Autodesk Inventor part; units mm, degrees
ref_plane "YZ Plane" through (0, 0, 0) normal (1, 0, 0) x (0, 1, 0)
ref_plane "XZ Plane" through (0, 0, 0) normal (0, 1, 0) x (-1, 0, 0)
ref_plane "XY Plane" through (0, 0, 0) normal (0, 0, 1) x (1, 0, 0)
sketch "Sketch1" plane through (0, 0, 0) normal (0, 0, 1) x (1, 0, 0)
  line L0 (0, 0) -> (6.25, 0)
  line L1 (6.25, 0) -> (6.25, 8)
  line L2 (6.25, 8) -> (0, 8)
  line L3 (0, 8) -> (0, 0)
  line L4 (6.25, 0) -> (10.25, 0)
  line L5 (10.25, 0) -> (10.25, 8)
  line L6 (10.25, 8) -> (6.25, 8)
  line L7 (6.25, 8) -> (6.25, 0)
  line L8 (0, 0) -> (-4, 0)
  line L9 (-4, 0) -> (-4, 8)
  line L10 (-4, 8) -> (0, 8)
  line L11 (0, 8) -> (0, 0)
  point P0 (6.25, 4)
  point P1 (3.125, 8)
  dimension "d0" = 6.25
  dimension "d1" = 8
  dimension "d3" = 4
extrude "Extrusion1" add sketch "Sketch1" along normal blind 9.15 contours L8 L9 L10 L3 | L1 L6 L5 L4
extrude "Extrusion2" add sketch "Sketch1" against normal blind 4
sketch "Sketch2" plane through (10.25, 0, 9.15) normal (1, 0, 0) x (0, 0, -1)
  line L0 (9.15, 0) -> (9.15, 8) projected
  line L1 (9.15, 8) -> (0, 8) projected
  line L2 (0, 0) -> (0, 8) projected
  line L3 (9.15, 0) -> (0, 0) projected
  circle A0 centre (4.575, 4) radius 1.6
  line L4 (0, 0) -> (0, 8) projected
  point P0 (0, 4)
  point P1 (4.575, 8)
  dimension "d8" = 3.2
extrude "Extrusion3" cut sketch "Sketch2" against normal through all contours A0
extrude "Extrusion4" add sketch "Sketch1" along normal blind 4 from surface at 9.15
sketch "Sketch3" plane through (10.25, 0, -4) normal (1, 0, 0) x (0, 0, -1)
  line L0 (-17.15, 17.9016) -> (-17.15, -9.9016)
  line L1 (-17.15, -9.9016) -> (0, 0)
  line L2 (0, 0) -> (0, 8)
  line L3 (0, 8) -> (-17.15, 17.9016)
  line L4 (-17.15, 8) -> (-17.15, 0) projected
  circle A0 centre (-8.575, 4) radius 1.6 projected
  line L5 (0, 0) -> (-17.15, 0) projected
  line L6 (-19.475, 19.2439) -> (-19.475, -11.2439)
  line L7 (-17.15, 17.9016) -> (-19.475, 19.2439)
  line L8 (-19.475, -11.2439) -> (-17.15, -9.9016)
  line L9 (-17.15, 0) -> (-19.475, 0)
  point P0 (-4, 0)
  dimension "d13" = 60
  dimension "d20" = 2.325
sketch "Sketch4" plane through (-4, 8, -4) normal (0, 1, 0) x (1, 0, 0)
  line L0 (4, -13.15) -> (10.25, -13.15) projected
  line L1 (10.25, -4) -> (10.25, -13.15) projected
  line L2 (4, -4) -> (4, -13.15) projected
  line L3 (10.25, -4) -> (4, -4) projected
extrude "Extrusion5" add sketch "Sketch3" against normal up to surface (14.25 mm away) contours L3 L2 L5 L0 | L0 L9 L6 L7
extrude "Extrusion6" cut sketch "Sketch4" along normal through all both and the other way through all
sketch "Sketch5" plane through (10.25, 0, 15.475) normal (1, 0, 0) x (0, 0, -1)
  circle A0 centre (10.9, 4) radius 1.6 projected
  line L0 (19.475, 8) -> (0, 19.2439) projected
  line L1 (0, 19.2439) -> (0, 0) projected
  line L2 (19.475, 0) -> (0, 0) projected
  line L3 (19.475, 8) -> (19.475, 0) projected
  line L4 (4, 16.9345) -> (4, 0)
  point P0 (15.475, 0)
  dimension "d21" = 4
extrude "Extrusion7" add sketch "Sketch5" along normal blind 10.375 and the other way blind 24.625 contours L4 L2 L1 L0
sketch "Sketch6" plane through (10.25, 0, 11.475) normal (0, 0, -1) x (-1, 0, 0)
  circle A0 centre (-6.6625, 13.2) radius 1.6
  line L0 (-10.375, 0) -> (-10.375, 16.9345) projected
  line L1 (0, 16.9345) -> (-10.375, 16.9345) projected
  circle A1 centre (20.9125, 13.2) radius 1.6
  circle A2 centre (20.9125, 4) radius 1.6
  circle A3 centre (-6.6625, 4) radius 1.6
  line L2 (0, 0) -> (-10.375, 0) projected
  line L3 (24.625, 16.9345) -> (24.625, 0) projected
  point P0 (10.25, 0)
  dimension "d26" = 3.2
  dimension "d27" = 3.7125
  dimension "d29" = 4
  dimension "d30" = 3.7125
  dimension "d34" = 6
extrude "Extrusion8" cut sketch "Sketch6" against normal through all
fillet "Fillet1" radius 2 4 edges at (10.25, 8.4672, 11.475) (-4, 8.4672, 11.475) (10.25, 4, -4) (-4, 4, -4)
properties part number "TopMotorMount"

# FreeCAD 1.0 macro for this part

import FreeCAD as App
import Part
import Sketcher
from FreeCAD import Vector
Q = App.Units.Quantity


def edges_at(feature, points):
    """Names of the edges that pass closest to the given points."""
    edges = feature.Shape.Edges
    near = lambda p: min(range(len(edges)), key=lambda i: edges[i].distToShape(Part.Vertex(*p))[0])
    return sorted({f"Edge{near(p) + 1}" for p in points})


def add_polygon(sketch, points):
    """Adds a closed chain of lines whose ends are joined by coincident constraints."""
    first, n = sketch.GeometryCount, len(points)
    for a, b in zip(points, points[1:] + points[:1]):
        sketch.addGeometry(Part.LineSegment(App.Vector(*a, 0), App.Vector(*b, 0)), False)
    for i in range(n):
        sketch.addConstraint(Sketcher.Constraint("Coincident", first + i, 2, first + (i + 1) % n, 1))

doc = App.newDocument("Part")
body = doc.addObject("PartDesign::Body", "Body")
body.AllowCompound = True

# Sketch on XY plane
sketch1 = body.newObject("Sketcher::SketchObject", "Sketch")
sketch1.AttachmentSupport = (doc.getObject("XY_Plane"), [""])
sketch1.MapMode = "FlatFace"
add_polygon(sketch1, [(-4, 0), (0, 0), (0, 8), (-4, 8)])  # lines 0-3
add_polygon(sketch1, [(6.25, 8), (6.25, 0), (10.25, 0), (10.25, 8)])  # lines 4-7
sketch1.addConstraint([
    Sketcher.Constraint("Horizontal", 0),
    Sketcher.Constraint("Vertical", 1),
    Sketcher.Constraint("Horizontal", 2),
    Sketcher.Constraint("Vertical", 3),
    Sketcher.Constraint("Vertical", 4),
    Sketcher.Constraint("Horizontal", 5),
    Sketcher.Constraint("Vertical", 6),
    Sketcher.Constraint("Horizontal", 7),
    Sketcher.Constraint("Coincident", 0, 2, -1, 1),
    Sketcher.Constraint("PointOnObject", 4, 2, -1),
    Sketcher.Constraint("Horizontal", 2, 2, 6, 2),
    Sketcher.Constraint("Equal", 2, 5),
    Sketcher.Constraint("DistanceX", 0, 1, 0, 2, 4.0),
    Sketcher.Constraint("DistanceY", 1, 1, 1, 2, 8.0),
    Sketcher.Constraint("DistanceX", -1, 1, 4, 2, 6.25),
])
pad1 = body.newObject("PartDesign::Pad", "Pad")
pad1.Profile = sketch1
pad1.Length = 9.15

# Sketch on XY plane
sketch2 = body.newObject("Sketcher::SketchObject", "Sketch001")
sketch2.AttachmentSupport = (doc.getObject("XY_Plane"), [""])
sketch2.MapMode = "FlatFace"
add_polygon(sketch2, [(-4, 8), (-4, 0), (10.25, 0), (10.25, 8)])  # lines 0-3
sketch2.addConstraint([
    Sketcher.Constraint("Vertical", 0),
    Sketcher.Constraint("Horizontal", 1),
    Sketcher.Constraint("Vertical", 2),
    Sketcher.Constraint("Horizontal", 3),
    Sketcher.Constraint("PointOnObject", 0, 2, -1),
    Sketcher.Constraint("DistanceY", 0, 2, 0, 1, 8.0),
    Sketcher.Constraint("DistanceX", 0, 2, -1, 1, 4.0),
    Sketcher.Constraint("DistanceX", 1, 1, 1, 2, 14.25),
])
pad2 = body.newObject("PartDesign::Pad", "Pad001")
pad2.Profile = sketch2
pad2.Length = 4
pad2.Reversed = True

# Sketch on YZ plane
sketch3 = body.newObject("Sketcher::SketchObject", "Sketch002")
sketch3.AttachmentSupport = (doc.getObject("YZ_Plane"), [""])
sketch3.MapMode = "FlatFace"
sketch3.AttachmentOffset = App.Placement(Vector(0, 0, 10.25), App.Rotation())
sketch3.addGeometry(Part.Circle(Vector(4, 4.575, 0), Vector(0, 0, 1), 1.6), False)
sketch3.addConstraint([
    Sketcher.Constraint("Diameter", 0, 3.2),
    Sketcher.Constraint("DistanceX", -1, 1, 0, 3, 4.0),
    Sketcher.Constraint("DistanceY", -1, 1, 0, 3, 4.575),
])
pocket1 = body.newObject("PartDesign::Pocket", "Pocket")
pocket1.Profile = sketch3
pocket1.Type = "ThroughAll"

# Sketch on XY plane
sketch4 = body.newObject("Sketcher::SketchObject", "Sketch003")
sketch4.AttachmentSupport = (doc.getObject("XY_Plane"), [""])
sketch4.MapMode = "FlatFace"
sketch4.AttachmentOffset = App.Placement(Vector(0, 0, 9.15), App.Rotation())
add_polygon(sketch4, [(-4, 8), (-4, 0), (10.25, 0), (10.25, 8)])  # lines 0-3
sketch4.addConstraint([
    Sketcher.Constraint("Vertical", 0),
    Sketcher.Constraint("Horizontal", 1),
    Sketcher.Constraint("Vertical", 2),
    Sketcher.Constraint("Horizontal", 3),
    Sketcher.Constraint("PointOnObject", 0, 2, -1),
    Sketcher.Constraint("DistanceY", 0, 2, 0, 1, 8.0),
    Sketcher.Constraint("DistanceX", 0, 2, -1, 1, 4.0),
    Sketcher.Constraint("DistanceX", 1, 1, 1, 2, 14.25),
])
pad3 = body.newObject("PartDesign::Pad", "Pad002")
pad3.Profile = sketch4
pad3.Length = 4

# Sketch on YZ plane
sketch5 = body.newObject("Sketcher::SketchObject", "Sketch004")
sketch5.AttachmentSupport = (doc.getObject("YZ_Plane"), [""])
sketch5.MapMode = "FlatFace"
sketch5.AttachmentOffset = App.Placement(Vector(0, 0, 10.25), App.Rotation())
add_polygon(sketch5, [(8, -4), (17.9016, 13.15), (19.2439, 15.475), (0, 15.475), (0, -4)])  # lines 0-4
sketch5.addGeometry(Part.Circle(Vector(4, 4.575, 0), Vector(0, 0, 1), 1.6), False)  # 5
sketch5.addConstraint([
    Sketcher.Constraint("Horizontal", 2),
    Sketcher.Constraint("Vertical", 3),
    Sketcher.Constraint("Horizontal", 4),
    Sketcher.Constraint("PointOnObject", 2, 2, -2),
    Sketcher.Constraint("Parallel", 0, 1),
    Sketcher.Constraint("Angle", 0, Q("60 deg")),
    Sketcher.Constraint("Diameter", 5, 3.2),
    Sketcher.Constraint("DistanceX", 4, 1, 4, 2, 8.0),
    Sketcher.Constraint("DistanceX", -1, 1, 5, 3, 4.0),
    Sketcher.Constraint("DistanceY", 3, 2, -1, 1, 4.0),
    Sketcher.Constraint("DistanceY", 0, 2, 1, 2, 2.325),
    Sketcher.Constraint("DistanceY", 5, 3, 1, 2, 10.9),
    Sketcher.Constraint("DistanceX", 2, 2, 2, 1, 19.244),
])
pad4 = body.newObject("PartDesign::Pad", "Pad003")
pad4.Profile = sketch5
pad4.Length = 14.25
pad4.Reversed = True

# Sketch on XZ plane
sketch6 = body.newObject("Sketcher::SketchObject", "Sketch005")
sketch6.AttachmentSupport = (doc.getObject("XZ_Plane"), [""])
sketch6.MapMode = "FlatFace"
sketch6.AttachmentOffset = App.Placement(Vector(0, 0, -8), App.Rotation())
add_polygon(sketch6, [(0, 0), (0, 9.15), (6.25, 9.15), (6.25, 0)])  # lines 0-3
sketch6.addConstraint([
    Sketcher.Constraint("Vertical", 0),
    Sketcher.Constraint("Horizontal", 1),
    Sketcher.Constraint("Vertical", 2),
    Sketcher.Constraint("Horizontal", 3),
    Sketcher.Constraint("Coincident", 3, 2, -1, 1),
    Sketcher.Constraint("DistanceX", 1, 1, 1, 2, 6.25),
    Sketcher.Constraint("DistanceY", 0, 1, 0, 2, 9.15),
])
pocket2 = body.newObject("PartDesign::Pocket", "Pocket001")
pocket2.Profile = sketch6
pocket2.Type = "ThroughAll"
pocket2.Midplane = True

# Sketch on YZ plane
sketch7 = body.newObject("Sketcher::SketchObject", "Sketch006")
sketch7.AttachmentSupport = (doc.getObject("YZ_Plane"), [""])
sketch7.MapMode = "FlatFace"
sketch7.AttachmentOffset = App.Placement(Vector(0, 0, 10.25), App.Rotation())
add_polygon(sketch7, [(0, 11.475), (16.934499, 11.475001), (19.2439, 15.475), (0, 15.475)])  # lines 0-3
sketch7.addConstraint([
    Sketcher.Constraint("Horizontal", 0),
    Sketcher.Constraint("Horizontal", 2),
    Sketcher.Constraint("Vertical", 3),
    Sketcher.Constraint("PointOnObject", 2, 2, -2),
    Sketcher.Constraint("DistanceY", 3, 2, 3, 1, 4.0),
    Sketcher.Constraint("Angle", 1, Q("60 deg")),
    Sketcher.Constraint("DistanceX", 2, 2, 2, 1, 19.244),
    Sketcher.Constraint("DistanceY", -1, 1, 0, 2, 11.475),
])
pad5 = body.newObject("PartDesign::Pad", "Pad004")
pad5.Profile = sketch7
pad5.Type = "TwoLengths"
pad5.Length = 10.375
pad5.Length2 = 24.625

# Sketch on XY plane
sketch8 = body.newObject("Sketcher::SketchObject", "Sketch007")
sketch8.AttachmentSupport = (doc.getObject("XY_Plane"), [""])
sketch8.MapMode = "FlatFace"
sketch8.AttachmentOffset = App.Placement(Vector(0, 0, 11.475), App.Rotation())
sketch8.addGeometry([
    Part.Circle(Vector(16.9125, 13.2, 0), Vector(0, 0, 1), 1.6),
    Part.Circle(Vector(-10.6625, 13.2, 0), Vector(0, 0, 1), 1.6),
    Part.Circle(Vector(-10.6625, 4, 0), Vector(0, 0, 1), 1.6),
    Part.Circle(Vector(16.9125, 4, 0), Vector(0, 0, 1), 1.6),
], False)
sketch8.addConstraint([
    Sketcher.Constraint("Equal", 0, 1),
    Sketcher.Constraint("Equal", 1, 2),
    Sketcher.Constraint("Equal", 2, 3),
    Sketcher.Constraint("Horizontal", 0, 3, 1, 3),
    Sketcher.Constraint("Horizontal", 2, 3, 3, 3),
    Sketcher.Constraint("Vertical", 1, 3, 2, 3),
    Sketcher.Constraint("Vertical", 0, 3, 3, 3),
    Sketcher.Constraint("Diameter", 0, 3.2),
    Sketcher.Constraint("DistanceY", -1, 1, 2, 3, 4.0),
    Sketcher.Constraint("DistanceY", -1, 1, 0, 3, 13.2),
    Sketcher.Constraint("DistanceX", 1, 3, 0, 3, 27.575),
    Sketcher.Constraint("DistanceX", -1, 1, 0, 3, 16.9125),
])
pocket3 = body.newObject("PartDesign::Pocket", "Pocket002")
pocket3.Profile = sketch8
pocket3.Type = "ThroughAll"
pocket3.Reversed = True
doc.recompute()

fillet = body.newObject("PartDesign::Fillet", "Fillet")
fillet.Base = (pocket3, edges_at(pocket3, [
    (10.25, 8.467, 11.475),
    (-4, 8.467, 11.475),
    (10.25, 4, -4),
    (-4, 4, -4),
]))
fillet.Radius = 2

doc.recompute()
